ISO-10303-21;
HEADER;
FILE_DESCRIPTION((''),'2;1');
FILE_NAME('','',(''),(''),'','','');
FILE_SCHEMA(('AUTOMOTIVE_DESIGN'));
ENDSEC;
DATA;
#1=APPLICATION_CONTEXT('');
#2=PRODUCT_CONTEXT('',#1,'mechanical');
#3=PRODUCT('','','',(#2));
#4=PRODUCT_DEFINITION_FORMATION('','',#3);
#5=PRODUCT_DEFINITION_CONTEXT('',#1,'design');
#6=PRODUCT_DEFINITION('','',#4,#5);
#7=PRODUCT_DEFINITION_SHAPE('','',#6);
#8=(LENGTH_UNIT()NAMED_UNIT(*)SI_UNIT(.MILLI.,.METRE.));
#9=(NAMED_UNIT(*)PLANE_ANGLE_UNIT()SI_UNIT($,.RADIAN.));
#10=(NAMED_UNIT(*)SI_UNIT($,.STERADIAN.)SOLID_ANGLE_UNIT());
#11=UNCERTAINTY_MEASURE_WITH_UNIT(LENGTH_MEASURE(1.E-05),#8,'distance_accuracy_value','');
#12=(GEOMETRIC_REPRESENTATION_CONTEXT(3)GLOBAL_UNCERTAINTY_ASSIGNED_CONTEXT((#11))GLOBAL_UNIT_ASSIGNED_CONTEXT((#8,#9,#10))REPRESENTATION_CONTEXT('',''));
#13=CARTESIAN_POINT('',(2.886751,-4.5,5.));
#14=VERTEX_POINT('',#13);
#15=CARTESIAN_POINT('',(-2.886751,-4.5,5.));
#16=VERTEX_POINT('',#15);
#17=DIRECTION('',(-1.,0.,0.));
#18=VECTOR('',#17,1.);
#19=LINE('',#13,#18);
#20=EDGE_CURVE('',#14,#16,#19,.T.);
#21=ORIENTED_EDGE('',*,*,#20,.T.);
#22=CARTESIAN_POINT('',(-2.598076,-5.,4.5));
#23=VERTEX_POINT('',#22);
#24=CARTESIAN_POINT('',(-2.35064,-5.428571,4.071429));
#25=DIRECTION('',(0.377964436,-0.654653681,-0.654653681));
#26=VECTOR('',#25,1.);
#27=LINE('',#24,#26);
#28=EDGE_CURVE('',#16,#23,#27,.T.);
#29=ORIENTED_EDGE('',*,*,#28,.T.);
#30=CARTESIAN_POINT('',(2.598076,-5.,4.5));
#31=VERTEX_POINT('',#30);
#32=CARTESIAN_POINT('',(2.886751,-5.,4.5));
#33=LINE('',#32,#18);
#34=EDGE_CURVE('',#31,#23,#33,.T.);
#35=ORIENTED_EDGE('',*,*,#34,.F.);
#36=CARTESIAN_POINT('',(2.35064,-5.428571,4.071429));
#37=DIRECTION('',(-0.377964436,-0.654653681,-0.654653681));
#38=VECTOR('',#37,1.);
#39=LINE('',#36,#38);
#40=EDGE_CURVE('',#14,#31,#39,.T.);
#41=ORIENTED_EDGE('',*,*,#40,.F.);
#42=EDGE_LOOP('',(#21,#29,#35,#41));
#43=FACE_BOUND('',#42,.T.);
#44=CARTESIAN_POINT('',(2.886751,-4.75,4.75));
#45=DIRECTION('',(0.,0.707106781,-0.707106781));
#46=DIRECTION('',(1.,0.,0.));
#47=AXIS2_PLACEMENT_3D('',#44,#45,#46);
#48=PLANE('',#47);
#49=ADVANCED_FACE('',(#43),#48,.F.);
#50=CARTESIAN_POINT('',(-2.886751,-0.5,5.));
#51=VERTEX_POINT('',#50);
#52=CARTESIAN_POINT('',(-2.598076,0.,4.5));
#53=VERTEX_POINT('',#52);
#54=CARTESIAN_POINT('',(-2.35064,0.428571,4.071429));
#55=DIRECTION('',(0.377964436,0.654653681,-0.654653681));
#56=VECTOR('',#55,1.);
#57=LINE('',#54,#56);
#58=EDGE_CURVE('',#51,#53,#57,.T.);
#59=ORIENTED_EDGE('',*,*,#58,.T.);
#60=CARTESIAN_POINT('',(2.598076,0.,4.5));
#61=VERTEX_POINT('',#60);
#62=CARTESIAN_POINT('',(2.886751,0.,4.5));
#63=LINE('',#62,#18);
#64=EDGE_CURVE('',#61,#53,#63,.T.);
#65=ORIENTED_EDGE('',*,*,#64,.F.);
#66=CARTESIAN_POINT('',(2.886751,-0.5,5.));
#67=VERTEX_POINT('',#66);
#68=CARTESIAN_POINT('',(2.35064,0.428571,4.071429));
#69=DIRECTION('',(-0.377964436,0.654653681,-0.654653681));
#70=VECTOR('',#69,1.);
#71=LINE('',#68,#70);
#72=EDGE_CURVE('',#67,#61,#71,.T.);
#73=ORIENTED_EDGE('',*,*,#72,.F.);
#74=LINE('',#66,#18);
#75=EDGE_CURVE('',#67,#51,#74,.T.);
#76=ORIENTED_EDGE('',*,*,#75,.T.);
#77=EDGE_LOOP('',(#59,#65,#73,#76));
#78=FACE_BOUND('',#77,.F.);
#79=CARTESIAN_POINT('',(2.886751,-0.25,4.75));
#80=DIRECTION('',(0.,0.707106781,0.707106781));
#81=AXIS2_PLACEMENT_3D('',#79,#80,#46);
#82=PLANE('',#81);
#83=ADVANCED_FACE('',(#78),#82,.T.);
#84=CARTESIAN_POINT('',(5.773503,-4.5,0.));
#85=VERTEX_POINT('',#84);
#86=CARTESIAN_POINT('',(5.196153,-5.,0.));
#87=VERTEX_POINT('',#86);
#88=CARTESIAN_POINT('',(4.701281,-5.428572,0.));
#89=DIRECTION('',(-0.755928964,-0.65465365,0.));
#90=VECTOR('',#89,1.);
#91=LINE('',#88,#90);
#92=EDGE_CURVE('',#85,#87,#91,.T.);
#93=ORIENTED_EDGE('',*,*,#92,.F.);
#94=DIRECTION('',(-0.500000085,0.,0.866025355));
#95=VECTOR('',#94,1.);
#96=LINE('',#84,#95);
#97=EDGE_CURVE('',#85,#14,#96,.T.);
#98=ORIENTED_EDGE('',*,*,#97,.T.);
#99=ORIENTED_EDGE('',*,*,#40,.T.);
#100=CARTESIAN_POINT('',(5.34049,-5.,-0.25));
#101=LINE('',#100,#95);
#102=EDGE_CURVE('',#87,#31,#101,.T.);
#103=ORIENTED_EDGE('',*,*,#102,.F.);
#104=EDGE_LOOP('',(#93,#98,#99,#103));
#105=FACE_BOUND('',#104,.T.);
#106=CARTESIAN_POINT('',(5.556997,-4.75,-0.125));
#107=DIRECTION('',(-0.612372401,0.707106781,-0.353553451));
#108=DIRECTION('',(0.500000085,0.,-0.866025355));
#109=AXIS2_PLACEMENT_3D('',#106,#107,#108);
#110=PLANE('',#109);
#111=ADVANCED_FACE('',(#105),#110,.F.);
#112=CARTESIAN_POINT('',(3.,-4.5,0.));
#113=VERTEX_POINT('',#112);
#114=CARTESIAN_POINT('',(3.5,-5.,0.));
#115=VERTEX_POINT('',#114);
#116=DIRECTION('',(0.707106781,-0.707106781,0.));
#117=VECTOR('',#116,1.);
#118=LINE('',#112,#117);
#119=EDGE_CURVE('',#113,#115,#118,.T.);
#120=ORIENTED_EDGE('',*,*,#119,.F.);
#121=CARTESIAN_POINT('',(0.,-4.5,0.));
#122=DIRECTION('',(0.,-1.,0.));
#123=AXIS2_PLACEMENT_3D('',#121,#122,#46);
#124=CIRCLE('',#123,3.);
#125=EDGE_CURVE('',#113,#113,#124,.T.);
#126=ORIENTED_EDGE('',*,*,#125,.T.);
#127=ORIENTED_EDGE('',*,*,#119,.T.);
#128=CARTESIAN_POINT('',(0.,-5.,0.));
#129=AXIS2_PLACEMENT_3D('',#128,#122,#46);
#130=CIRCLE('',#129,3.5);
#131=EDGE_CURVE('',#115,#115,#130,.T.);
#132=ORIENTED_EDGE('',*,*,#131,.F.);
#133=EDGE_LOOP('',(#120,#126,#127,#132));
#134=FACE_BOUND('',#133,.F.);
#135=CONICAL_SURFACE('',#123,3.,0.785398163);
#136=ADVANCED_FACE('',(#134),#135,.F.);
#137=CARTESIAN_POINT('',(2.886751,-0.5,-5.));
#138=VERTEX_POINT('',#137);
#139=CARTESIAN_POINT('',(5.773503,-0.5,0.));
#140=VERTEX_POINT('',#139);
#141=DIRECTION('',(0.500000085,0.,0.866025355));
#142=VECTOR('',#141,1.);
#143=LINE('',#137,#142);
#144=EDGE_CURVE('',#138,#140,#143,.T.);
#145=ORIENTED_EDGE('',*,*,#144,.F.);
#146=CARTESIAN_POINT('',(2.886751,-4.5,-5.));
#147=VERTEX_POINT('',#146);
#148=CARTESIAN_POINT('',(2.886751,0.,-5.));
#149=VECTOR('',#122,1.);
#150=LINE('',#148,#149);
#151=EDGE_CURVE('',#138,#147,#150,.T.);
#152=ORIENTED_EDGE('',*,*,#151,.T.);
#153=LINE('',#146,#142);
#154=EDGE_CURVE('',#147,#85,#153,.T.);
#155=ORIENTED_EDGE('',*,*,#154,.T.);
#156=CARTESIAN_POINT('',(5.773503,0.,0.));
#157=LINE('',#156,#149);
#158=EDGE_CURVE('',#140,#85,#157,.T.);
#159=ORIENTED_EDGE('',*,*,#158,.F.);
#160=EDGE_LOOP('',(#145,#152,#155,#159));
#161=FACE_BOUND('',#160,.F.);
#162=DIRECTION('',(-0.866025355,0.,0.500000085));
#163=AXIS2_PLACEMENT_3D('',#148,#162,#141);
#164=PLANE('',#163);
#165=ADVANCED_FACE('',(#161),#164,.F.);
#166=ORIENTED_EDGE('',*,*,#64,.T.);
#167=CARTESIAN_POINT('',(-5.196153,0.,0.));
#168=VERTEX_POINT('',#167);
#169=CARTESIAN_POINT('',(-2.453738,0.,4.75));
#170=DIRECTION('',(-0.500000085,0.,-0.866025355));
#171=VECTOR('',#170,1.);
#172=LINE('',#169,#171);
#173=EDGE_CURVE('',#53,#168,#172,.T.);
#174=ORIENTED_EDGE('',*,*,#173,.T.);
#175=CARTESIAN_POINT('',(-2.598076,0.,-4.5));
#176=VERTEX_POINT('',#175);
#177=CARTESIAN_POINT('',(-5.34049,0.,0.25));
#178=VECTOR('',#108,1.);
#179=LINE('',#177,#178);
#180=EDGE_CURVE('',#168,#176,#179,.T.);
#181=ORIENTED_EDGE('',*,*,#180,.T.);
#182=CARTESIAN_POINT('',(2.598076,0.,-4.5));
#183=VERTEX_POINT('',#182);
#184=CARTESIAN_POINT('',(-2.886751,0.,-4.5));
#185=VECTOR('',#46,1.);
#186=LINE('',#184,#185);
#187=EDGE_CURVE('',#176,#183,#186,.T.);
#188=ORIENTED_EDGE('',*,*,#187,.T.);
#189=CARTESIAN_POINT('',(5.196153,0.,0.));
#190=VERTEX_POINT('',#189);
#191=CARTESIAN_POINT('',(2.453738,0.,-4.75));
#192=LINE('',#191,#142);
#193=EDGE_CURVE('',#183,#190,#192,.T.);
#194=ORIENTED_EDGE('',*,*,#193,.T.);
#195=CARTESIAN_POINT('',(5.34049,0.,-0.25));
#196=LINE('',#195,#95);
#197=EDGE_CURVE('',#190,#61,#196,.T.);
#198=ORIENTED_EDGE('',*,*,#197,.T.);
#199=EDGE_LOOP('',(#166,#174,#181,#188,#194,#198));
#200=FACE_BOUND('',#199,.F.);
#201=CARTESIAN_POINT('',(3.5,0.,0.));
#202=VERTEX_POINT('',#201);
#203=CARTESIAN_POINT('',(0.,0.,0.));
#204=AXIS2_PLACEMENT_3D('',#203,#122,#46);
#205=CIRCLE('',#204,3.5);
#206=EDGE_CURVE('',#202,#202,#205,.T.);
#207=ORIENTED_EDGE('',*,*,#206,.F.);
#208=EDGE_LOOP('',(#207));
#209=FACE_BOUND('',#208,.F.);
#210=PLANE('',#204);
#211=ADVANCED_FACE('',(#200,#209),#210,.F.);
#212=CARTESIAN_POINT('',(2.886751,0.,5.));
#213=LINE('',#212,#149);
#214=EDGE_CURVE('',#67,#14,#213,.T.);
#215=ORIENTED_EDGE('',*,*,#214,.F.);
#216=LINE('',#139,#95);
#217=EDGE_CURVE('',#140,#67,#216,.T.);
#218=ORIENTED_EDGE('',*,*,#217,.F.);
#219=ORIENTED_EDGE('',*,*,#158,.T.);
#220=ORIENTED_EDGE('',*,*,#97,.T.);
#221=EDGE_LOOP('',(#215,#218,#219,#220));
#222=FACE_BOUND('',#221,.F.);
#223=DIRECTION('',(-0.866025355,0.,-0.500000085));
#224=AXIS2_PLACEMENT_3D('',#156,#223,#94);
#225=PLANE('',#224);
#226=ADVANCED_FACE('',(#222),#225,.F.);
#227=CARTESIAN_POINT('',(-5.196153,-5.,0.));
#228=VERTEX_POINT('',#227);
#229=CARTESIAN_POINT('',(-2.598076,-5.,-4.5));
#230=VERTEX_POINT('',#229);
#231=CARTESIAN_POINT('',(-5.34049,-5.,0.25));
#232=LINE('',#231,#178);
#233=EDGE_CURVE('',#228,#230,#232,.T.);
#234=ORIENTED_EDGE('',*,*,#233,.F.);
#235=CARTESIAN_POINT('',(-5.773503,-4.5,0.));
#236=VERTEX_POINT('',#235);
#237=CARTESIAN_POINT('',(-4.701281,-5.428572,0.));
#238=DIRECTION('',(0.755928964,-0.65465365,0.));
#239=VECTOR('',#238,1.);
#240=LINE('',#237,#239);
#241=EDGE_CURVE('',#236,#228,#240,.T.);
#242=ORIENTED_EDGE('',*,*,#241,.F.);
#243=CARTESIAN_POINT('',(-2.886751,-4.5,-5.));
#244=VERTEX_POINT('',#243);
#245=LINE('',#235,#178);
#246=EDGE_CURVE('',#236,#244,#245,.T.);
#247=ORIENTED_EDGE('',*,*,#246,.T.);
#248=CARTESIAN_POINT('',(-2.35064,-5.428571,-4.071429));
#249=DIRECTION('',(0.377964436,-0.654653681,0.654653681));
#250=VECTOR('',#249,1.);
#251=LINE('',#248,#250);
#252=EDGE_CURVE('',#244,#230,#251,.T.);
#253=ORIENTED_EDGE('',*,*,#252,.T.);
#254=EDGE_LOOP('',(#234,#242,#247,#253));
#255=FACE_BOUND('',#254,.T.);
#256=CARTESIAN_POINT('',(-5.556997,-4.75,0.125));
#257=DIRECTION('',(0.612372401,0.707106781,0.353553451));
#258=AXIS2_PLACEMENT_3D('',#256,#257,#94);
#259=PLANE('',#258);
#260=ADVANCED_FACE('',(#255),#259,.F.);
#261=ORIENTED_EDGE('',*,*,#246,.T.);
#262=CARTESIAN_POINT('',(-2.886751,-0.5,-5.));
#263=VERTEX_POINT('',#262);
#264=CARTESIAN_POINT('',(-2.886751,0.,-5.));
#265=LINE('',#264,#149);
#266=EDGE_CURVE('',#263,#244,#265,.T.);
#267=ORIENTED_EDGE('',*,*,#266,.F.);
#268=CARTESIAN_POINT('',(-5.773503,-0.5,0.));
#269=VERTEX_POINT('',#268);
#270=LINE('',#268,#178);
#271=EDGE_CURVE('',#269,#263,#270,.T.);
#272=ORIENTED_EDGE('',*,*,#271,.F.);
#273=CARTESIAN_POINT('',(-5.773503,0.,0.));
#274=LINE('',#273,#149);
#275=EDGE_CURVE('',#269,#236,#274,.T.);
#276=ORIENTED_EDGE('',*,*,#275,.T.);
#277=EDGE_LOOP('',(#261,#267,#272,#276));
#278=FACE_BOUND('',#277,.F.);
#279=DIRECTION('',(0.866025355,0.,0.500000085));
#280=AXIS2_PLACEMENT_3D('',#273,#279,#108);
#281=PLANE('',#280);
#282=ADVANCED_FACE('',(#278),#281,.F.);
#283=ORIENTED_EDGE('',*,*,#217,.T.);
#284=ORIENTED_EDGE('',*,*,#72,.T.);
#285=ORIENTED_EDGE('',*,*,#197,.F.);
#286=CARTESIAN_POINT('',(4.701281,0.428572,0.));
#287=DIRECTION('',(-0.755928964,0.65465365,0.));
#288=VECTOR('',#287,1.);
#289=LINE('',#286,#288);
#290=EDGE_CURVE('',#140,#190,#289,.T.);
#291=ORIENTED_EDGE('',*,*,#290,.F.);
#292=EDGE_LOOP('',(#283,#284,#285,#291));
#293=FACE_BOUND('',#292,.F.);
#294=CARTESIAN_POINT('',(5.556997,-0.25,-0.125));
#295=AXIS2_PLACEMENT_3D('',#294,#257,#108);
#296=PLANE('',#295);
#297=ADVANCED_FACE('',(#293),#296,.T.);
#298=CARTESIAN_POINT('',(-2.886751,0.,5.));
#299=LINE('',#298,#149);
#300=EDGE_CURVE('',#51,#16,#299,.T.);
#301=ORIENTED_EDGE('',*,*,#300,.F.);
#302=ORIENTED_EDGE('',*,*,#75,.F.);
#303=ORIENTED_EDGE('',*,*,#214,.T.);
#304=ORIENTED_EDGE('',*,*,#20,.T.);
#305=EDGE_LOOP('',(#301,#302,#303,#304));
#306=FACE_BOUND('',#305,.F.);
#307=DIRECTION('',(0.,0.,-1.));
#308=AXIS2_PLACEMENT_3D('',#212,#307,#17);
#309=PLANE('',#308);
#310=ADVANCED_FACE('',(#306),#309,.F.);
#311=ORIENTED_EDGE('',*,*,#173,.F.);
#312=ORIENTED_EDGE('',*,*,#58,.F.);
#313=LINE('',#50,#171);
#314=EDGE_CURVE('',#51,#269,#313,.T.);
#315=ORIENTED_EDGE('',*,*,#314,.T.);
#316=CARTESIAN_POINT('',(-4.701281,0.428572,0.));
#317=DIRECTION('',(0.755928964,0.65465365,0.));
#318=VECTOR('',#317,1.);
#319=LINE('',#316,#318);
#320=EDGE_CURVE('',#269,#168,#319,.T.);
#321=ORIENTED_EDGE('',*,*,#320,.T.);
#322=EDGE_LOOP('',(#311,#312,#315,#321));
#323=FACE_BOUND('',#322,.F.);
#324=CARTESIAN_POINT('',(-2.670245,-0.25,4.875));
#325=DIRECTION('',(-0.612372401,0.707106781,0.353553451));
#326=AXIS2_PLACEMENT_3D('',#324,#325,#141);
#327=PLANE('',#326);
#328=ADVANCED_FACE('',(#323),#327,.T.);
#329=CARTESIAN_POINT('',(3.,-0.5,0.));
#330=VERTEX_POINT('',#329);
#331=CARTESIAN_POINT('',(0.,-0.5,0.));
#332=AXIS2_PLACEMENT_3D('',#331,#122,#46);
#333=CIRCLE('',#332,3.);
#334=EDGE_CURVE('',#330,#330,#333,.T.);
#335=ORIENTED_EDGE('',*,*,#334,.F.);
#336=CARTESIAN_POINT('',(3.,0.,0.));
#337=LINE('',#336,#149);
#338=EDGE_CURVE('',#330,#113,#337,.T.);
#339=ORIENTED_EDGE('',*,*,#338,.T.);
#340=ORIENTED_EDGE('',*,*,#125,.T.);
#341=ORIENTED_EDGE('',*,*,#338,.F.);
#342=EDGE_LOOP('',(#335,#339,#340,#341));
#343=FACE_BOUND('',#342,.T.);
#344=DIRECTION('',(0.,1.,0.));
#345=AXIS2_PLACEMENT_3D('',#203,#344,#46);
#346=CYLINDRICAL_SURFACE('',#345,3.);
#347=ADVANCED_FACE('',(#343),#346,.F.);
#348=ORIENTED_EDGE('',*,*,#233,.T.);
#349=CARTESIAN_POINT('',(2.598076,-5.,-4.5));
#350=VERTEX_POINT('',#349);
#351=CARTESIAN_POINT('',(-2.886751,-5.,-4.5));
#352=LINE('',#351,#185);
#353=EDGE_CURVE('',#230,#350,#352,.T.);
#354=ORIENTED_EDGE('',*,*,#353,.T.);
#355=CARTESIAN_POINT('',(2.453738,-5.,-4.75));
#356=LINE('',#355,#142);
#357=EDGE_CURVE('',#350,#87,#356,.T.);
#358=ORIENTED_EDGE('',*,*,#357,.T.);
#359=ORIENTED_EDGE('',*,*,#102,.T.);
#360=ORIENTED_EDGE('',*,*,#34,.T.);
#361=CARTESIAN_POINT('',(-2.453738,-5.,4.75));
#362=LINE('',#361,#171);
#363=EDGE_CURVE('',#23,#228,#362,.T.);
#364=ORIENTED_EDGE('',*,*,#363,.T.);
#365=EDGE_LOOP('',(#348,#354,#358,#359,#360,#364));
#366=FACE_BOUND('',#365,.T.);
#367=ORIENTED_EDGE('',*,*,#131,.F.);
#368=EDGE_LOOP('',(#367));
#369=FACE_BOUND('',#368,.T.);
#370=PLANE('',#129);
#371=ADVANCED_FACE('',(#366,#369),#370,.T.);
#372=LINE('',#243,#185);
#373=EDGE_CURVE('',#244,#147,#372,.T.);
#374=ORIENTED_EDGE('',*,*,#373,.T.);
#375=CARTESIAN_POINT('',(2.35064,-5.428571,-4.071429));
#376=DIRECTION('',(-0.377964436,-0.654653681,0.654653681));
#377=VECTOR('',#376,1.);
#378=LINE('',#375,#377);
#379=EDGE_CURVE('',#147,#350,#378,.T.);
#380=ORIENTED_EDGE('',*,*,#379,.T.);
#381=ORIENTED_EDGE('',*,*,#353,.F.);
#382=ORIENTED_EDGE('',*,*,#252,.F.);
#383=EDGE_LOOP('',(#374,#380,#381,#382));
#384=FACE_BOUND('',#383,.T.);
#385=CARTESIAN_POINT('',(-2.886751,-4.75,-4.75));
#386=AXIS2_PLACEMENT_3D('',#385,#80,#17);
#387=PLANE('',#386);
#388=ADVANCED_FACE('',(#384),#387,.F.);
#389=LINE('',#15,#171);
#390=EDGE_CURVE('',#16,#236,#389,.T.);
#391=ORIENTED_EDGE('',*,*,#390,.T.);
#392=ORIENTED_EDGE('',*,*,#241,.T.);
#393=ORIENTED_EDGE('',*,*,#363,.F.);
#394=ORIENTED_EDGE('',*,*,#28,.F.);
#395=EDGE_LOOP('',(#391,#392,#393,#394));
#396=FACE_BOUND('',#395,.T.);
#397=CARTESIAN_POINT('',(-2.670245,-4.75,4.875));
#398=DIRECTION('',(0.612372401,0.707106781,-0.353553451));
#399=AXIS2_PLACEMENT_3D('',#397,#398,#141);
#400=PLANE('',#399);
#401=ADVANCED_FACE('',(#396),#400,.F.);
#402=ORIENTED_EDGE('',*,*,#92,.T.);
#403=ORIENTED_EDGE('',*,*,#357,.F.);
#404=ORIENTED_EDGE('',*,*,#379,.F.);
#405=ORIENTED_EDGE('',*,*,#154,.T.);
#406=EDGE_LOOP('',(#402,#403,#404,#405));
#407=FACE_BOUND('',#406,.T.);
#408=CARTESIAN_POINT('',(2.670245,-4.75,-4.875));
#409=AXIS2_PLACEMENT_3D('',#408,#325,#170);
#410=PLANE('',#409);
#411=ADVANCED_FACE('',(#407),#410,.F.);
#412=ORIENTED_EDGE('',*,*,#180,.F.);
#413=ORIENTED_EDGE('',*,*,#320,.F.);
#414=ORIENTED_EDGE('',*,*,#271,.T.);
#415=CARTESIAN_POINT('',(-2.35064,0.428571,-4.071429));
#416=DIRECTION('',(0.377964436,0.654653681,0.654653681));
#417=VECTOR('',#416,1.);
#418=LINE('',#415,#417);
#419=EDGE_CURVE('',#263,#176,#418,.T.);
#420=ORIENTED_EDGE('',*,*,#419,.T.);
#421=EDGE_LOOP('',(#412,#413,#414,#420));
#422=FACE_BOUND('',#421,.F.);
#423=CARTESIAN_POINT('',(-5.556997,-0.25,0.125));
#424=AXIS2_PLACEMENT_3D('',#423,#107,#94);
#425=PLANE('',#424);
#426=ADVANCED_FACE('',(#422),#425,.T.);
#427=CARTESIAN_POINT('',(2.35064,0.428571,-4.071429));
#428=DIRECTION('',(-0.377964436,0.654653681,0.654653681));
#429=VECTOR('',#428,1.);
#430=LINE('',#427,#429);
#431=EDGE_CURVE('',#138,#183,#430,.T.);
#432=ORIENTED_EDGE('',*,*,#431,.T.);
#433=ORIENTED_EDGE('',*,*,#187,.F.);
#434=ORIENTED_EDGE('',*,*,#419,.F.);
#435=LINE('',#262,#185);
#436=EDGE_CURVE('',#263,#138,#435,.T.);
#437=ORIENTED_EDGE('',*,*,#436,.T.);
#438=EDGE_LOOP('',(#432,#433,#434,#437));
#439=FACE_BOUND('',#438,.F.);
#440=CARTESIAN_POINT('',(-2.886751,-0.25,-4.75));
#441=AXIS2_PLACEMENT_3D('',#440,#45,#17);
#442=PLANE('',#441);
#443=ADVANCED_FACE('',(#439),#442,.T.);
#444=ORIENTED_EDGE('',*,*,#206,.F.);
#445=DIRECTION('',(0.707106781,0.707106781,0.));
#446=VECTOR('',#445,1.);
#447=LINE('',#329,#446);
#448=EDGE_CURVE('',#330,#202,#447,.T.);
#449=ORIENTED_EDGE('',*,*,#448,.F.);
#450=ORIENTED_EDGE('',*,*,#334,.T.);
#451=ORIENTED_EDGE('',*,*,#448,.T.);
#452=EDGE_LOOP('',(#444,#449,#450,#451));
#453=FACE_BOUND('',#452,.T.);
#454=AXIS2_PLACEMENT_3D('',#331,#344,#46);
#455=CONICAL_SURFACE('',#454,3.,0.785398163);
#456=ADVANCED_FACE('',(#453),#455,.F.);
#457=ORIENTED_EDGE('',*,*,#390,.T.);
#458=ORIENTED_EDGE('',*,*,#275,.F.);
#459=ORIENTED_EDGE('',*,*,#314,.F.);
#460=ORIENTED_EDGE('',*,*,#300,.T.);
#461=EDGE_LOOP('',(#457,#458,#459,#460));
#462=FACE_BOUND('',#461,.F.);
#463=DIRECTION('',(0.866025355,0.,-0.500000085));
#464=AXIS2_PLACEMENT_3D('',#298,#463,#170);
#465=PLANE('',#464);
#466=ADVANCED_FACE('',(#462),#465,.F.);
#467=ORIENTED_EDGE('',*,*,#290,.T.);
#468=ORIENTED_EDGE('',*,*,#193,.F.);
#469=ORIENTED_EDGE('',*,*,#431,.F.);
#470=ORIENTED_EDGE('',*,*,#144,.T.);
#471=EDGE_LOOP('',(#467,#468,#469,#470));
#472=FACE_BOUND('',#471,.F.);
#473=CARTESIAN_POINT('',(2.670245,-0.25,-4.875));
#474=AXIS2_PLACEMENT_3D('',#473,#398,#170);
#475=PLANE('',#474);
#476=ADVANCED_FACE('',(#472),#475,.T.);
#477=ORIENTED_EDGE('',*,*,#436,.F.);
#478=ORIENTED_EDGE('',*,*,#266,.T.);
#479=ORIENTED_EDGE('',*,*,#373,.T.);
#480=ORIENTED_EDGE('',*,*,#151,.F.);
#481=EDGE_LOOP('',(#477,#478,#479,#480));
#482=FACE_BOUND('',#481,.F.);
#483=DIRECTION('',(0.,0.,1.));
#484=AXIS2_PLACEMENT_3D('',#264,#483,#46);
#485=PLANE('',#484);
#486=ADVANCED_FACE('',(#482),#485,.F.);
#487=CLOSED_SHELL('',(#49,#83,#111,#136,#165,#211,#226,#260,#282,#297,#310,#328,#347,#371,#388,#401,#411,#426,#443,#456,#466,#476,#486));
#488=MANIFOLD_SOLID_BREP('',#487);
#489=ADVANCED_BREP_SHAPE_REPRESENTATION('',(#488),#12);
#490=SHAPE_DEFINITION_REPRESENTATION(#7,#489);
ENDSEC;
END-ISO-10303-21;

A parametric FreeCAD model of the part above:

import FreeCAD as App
import Part
import Sketcher
Q = App.Units.Quantity


def edges_at(feature, points):
    """Names of the edges that pass closest to the given points."""
    edges = feature.Shape.Edges
    near = lambda p: min(range(len(edges)), key=lambda i: edges[i].distToShape(Part.Vertex(*p))[0])
    return sorted({f"Edge{near(p) + 1}" for p in points})

doc = App.newDocument("Part")
body = doc.addObject("PartDesign::Body", "Body")

sketch1 = body.newObject("Sketcher::SketchObject", "Sketch")
sketch1.AttachmentSupport = (doc.getObject("XZ_Plane"), [""])
sketch1.MapMode = "FlatFace"
sketch1.addGeometry([
    Part.LineSegment(App.Vector(2.9, 5, 0), App.Vector(-2.9, 5, 0)),
    Part.LineSegment(App.Vector(-2.9, 5, 0), App.Vector(-5.8, 0, 0)),
    Part.LineSegment(App.Vector(-5.8, 0, 0), App.Vector(-2.9, -5, 0)),
    Part.LineSegment(App.Vector(-2.9, -5, 0), App.Vector(2.9, -5, 0)),
    Part.LineSegment(App.Vector(2.9, -5, 0), App.Vector(5.8, 0, 0)),
    Part.LineSegment(App.Vector(5.8, 0, 0), App.Vector(2.9, 5, 0)),
    Part.Circle(App.Vector(0, 0, 0), App.Vector(0, 0, 1), 3),
], False)
sketch1.addConstraint([
    Sketcher.Constraint("Coincident", 0, 2, 1, 1),
    Sketcher.Constraint("Coincident", 1, 2, 2, 1),
    Sketcher.Constraint("Coincident", 2, 2, 3, 1),
    Sketcher.Constraint("Coincident", 3, 2, 4, 1),
    Sketcher.Constraint("Coincident", 4, 2, 5, 1),
    Sketcher.Constraint("Coincident", 5, 2, 0, 1),
    Sketcher.Constraint("Horizontal", 0),
    Sketcher.Constraint("Horizontal", 3),
    Sketcher.Constraint("Coincident", 6, 3, -1, 1),
    Sketcher.Constraint("Symmetric", 0, 2, 3, 2, -1, 1),
    Sketcher.Constraint("Symmetric", 1, 2, 4, 2, -1, 1),
    Sketcher.Constraint("PointOnObject", 1, 2, -1),
    Sketcher.Constraint("Parallel", 2, 5),
    Sketcher.Constraint("Vertical", 0, 2, 2, 2),
    Sketcher.Constraint("Diameter", 6, Q("6 mm")),
    Sketcher.Constraint("Angle", 1, Q("-120.000006 deg")),
    Sketcher.Constraint("DistanceY", -1, 1, 0, 2, Q("5 mm")),
    Sketcher.Constraint("DistanceX", 0, 2, 0, 1, Q("5.773502 mm")),
])
pad1 = body.newObject("PartDesign::Pad", "Pad")
pad1.Profile = sketch1
pad1.Length = 5
doc.recompute()

chamfer = body.newObject("PartDesign::Chamfer", "Chamfer")
chamfer.Base = (pad1, edges_at(pad1, [
    (4.33, -5, 2.5),
    (0, -5, 5),
    (-4.33, -5, 2.5),
    (-4.33, -5, -2.5),
    (0, -5, -5),
    (4.33, -5, -2.5),
    (-3, -5, 0),
    (4.33, 0, 2.5),
    (0, 0, 5),
    (-4.33, 0, 2.5),
    (-4.33, 0, -2.5),
    (0, 0, -5),
    (4.33, 0, -2.5),
    (-3, 0, 0),
]))
chamfer.Size = 0.5

doc.recompute()
